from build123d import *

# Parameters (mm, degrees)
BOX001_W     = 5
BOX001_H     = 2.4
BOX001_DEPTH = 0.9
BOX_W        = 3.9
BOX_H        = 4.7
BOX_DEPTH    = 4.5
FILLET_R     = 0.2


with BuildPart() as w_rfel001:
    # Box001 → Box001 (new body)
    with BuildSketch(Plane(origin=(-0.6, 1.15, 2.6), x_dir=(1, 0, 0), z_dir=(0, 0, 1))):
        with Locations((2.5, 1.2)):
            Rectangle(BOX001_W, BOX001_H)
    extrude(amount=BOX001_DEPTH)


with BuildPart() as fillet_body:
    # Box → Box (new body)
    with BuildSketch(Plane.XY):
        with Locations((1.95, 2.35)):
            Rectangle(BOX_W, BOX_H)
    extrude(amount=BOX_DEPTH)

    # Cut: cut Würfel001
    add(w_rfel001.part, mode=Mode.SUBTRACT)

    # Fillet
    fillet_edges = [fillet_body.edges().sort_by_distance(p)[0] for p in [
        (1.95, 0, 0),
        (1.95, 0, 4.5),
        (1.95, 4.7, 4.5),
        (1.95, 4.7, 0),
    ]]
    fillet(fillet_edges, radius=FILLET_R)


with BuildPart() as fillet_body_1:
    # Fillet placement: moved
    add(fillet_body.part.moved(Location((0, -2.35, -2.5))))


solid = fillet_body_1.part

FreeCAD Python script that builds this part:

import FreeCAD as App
import Part
import Sketcher


def edges_at(feature, points):
    """Names of the edges that pass closest to the given points."""
    edges = feature.Shape.Edges
    near = lambda p: min(range(len(edges)), key=lambda i: edges[i].distToShape(Part.Vertex(*p))[0])
    return sorted({f"Edge{near(p) + 1}" for p in points})


def add_polygon(sketch, points):
    """Adds a closed chain of lines whose ends are joined by coincident constraints."""
    first, n = sketch.GeometryCount, len(points)
    for a, b in zip(points, points[1:] + points[:1]):
        sketch.addGeometry(Part.LineSegment(App.Vector(*a, 0), App.Vector(*b, 0)), False)
    for i in range(n):
        sketch.addConstraint(Sketcher.Constraint("Coincident", first + i, 2, first + (i + 1) % n, 1))

doc = App.newDocument("Part")
params = doc.addObject("Spreadsheet::Sheet", "Params")
for row, (alias, value) in enumerate([
    ("sketch1_width", "5 mm"),
    ("sketch1_height", "2.4 mm"),
    ("pad1_length", "0.9 mm"),
    ("sketch2_width", "3.9 mm"),
    ("sketch2_height", "4.7 mm"),
    ("pad2_length", "4.5 mm"),
    ("fillet_radius", "0.2 mm"),
], start=1):
    params.set(f"A{row}", alias)
    params.set(f"B{row}", "=" + value)
    params.setAlias(f"B{row}", alias)

body = doc.addObject("PartDesign::Body", "Body")

# Sketch on XY plane
sketch1 = body.newObject("Sketcher::SketchObject", "Sketch")
sketch1.AttachmentSupport = (doc.getObject("XY_Plane"), [""])
sketch1.MapMode = "FlatFace"
sketch1.AttachmentOffset = App.Placement(App.Vector(0, 0, 2.6), App.Rotation())
add_polygon(sketch1, [(-0.6, 3.5), (-0.6, 1.1), (4.4, 1.1), (4.4, 3.5)])  # lines 0-3
sketch1.addConstraint([
    Sketcher.Constraint("Vertical", 0),
    Sketcher.Constraint("Horizontal", 1),
    Sketcher.Constraint("Vertical", 2),
    Sketcher.Constraint("Horizontal", 3),
    Sketcher.Constraint("DistanceX", 1, 1, 1, 2, 5.0),
    Sketcher.Constraint("DistanceY", 0, 2, 0, 1, 2.4),
    Sketcher.Constraint("DistanceX", 0, 2, -1, 1, 0.6),
    Sketcher.Constraint("DistanceY", -1, 1, 0, 2, 1.15),
])
sketch1.setExpression("Constraints[8]", "Params.sketch1_width")
sketch1.setExpression("Constraints[9]", "Params.sketch1_height")
pad1 = body.newObject("PartDesign::Pad", "Pad")
pad1.Profile = sketch1
pad1.setExpression("Length", "Params.pad1_length")
body2 = doc.addObject("PartDesign::Body", "Body001")

# Sketch on XY plane
sketch2 = body2.newObject("Sketcher::SketchObject", "Sketch001")
sketch2.AttachmentSupport = (doc.getObject("XY_Plane001"), [""])
sketch2.MapMode = "FlatFace"
add_polygon(sketch2, [(0, 4.7), (0, 0), (3.9, 0), (3.9, 4.7)])  # lines 0-3
sketch2.addConstraint([
    Sketcher.Constraint("Vertical", 0),
    Sketcher.Constraint("Horizontal", 1),
    Sketcher.Constraint("Vertical", 2),
    Sketcher.Constraint("Horizontal", 3),
    Sketcher.Constraint("Coincident", 0, 2, -1, 1),
    Sketcher.Constraint("DistanceX", 1, 1, 1, 2, 3.9),
    Sketcher.Constraint("DistanceY", 0, 2, 0, 1, 4.7),
])
sketch2.setExpression("Constraints[9]", "Params.sketch2_width")
sketch2.setExpression("Constraints[10]", "Params.sketch2_height")
pad2 = body2.newObject("PartDesign::Pad", "Pad001")
pad2.Profile = sketch2
pad2.setExpression("Length", "Params.pad2_length")
doc.recompute()

boolean = body2.newObject("PartDesign::Boolean", "Boolean")
boolean.Type = "Cut"
boolean.addObjects([body])
doc.recompute()

fillet = body2.newObject("PartDesign::Fillet", "Fillet")
fillet.Base = (boolean, edges_at(boolean, [
    (1.95, 0, 0),
    (1.95, 0, 4.5),
    (1.95, 4.7, 4.5),
    (1.95, 4.7, 0),
]))
fillet.setExpression("Radius", "Params.fillet_radius")
body3 = doc.addObject("PartDesign::Body", "Body002")
doc.recompute()

body2.Placement = App.Placement(App.Vector(0, -2.35, -2.5), App.Rotation(App.Vector(0, 0, 1), 0))
boolean2 = body3.newObject("PartDesign::Boolean", "Boolean001")
boolean2.Type = "Fuse"
boolean2.addObjects([body2])

doc.recompute()
